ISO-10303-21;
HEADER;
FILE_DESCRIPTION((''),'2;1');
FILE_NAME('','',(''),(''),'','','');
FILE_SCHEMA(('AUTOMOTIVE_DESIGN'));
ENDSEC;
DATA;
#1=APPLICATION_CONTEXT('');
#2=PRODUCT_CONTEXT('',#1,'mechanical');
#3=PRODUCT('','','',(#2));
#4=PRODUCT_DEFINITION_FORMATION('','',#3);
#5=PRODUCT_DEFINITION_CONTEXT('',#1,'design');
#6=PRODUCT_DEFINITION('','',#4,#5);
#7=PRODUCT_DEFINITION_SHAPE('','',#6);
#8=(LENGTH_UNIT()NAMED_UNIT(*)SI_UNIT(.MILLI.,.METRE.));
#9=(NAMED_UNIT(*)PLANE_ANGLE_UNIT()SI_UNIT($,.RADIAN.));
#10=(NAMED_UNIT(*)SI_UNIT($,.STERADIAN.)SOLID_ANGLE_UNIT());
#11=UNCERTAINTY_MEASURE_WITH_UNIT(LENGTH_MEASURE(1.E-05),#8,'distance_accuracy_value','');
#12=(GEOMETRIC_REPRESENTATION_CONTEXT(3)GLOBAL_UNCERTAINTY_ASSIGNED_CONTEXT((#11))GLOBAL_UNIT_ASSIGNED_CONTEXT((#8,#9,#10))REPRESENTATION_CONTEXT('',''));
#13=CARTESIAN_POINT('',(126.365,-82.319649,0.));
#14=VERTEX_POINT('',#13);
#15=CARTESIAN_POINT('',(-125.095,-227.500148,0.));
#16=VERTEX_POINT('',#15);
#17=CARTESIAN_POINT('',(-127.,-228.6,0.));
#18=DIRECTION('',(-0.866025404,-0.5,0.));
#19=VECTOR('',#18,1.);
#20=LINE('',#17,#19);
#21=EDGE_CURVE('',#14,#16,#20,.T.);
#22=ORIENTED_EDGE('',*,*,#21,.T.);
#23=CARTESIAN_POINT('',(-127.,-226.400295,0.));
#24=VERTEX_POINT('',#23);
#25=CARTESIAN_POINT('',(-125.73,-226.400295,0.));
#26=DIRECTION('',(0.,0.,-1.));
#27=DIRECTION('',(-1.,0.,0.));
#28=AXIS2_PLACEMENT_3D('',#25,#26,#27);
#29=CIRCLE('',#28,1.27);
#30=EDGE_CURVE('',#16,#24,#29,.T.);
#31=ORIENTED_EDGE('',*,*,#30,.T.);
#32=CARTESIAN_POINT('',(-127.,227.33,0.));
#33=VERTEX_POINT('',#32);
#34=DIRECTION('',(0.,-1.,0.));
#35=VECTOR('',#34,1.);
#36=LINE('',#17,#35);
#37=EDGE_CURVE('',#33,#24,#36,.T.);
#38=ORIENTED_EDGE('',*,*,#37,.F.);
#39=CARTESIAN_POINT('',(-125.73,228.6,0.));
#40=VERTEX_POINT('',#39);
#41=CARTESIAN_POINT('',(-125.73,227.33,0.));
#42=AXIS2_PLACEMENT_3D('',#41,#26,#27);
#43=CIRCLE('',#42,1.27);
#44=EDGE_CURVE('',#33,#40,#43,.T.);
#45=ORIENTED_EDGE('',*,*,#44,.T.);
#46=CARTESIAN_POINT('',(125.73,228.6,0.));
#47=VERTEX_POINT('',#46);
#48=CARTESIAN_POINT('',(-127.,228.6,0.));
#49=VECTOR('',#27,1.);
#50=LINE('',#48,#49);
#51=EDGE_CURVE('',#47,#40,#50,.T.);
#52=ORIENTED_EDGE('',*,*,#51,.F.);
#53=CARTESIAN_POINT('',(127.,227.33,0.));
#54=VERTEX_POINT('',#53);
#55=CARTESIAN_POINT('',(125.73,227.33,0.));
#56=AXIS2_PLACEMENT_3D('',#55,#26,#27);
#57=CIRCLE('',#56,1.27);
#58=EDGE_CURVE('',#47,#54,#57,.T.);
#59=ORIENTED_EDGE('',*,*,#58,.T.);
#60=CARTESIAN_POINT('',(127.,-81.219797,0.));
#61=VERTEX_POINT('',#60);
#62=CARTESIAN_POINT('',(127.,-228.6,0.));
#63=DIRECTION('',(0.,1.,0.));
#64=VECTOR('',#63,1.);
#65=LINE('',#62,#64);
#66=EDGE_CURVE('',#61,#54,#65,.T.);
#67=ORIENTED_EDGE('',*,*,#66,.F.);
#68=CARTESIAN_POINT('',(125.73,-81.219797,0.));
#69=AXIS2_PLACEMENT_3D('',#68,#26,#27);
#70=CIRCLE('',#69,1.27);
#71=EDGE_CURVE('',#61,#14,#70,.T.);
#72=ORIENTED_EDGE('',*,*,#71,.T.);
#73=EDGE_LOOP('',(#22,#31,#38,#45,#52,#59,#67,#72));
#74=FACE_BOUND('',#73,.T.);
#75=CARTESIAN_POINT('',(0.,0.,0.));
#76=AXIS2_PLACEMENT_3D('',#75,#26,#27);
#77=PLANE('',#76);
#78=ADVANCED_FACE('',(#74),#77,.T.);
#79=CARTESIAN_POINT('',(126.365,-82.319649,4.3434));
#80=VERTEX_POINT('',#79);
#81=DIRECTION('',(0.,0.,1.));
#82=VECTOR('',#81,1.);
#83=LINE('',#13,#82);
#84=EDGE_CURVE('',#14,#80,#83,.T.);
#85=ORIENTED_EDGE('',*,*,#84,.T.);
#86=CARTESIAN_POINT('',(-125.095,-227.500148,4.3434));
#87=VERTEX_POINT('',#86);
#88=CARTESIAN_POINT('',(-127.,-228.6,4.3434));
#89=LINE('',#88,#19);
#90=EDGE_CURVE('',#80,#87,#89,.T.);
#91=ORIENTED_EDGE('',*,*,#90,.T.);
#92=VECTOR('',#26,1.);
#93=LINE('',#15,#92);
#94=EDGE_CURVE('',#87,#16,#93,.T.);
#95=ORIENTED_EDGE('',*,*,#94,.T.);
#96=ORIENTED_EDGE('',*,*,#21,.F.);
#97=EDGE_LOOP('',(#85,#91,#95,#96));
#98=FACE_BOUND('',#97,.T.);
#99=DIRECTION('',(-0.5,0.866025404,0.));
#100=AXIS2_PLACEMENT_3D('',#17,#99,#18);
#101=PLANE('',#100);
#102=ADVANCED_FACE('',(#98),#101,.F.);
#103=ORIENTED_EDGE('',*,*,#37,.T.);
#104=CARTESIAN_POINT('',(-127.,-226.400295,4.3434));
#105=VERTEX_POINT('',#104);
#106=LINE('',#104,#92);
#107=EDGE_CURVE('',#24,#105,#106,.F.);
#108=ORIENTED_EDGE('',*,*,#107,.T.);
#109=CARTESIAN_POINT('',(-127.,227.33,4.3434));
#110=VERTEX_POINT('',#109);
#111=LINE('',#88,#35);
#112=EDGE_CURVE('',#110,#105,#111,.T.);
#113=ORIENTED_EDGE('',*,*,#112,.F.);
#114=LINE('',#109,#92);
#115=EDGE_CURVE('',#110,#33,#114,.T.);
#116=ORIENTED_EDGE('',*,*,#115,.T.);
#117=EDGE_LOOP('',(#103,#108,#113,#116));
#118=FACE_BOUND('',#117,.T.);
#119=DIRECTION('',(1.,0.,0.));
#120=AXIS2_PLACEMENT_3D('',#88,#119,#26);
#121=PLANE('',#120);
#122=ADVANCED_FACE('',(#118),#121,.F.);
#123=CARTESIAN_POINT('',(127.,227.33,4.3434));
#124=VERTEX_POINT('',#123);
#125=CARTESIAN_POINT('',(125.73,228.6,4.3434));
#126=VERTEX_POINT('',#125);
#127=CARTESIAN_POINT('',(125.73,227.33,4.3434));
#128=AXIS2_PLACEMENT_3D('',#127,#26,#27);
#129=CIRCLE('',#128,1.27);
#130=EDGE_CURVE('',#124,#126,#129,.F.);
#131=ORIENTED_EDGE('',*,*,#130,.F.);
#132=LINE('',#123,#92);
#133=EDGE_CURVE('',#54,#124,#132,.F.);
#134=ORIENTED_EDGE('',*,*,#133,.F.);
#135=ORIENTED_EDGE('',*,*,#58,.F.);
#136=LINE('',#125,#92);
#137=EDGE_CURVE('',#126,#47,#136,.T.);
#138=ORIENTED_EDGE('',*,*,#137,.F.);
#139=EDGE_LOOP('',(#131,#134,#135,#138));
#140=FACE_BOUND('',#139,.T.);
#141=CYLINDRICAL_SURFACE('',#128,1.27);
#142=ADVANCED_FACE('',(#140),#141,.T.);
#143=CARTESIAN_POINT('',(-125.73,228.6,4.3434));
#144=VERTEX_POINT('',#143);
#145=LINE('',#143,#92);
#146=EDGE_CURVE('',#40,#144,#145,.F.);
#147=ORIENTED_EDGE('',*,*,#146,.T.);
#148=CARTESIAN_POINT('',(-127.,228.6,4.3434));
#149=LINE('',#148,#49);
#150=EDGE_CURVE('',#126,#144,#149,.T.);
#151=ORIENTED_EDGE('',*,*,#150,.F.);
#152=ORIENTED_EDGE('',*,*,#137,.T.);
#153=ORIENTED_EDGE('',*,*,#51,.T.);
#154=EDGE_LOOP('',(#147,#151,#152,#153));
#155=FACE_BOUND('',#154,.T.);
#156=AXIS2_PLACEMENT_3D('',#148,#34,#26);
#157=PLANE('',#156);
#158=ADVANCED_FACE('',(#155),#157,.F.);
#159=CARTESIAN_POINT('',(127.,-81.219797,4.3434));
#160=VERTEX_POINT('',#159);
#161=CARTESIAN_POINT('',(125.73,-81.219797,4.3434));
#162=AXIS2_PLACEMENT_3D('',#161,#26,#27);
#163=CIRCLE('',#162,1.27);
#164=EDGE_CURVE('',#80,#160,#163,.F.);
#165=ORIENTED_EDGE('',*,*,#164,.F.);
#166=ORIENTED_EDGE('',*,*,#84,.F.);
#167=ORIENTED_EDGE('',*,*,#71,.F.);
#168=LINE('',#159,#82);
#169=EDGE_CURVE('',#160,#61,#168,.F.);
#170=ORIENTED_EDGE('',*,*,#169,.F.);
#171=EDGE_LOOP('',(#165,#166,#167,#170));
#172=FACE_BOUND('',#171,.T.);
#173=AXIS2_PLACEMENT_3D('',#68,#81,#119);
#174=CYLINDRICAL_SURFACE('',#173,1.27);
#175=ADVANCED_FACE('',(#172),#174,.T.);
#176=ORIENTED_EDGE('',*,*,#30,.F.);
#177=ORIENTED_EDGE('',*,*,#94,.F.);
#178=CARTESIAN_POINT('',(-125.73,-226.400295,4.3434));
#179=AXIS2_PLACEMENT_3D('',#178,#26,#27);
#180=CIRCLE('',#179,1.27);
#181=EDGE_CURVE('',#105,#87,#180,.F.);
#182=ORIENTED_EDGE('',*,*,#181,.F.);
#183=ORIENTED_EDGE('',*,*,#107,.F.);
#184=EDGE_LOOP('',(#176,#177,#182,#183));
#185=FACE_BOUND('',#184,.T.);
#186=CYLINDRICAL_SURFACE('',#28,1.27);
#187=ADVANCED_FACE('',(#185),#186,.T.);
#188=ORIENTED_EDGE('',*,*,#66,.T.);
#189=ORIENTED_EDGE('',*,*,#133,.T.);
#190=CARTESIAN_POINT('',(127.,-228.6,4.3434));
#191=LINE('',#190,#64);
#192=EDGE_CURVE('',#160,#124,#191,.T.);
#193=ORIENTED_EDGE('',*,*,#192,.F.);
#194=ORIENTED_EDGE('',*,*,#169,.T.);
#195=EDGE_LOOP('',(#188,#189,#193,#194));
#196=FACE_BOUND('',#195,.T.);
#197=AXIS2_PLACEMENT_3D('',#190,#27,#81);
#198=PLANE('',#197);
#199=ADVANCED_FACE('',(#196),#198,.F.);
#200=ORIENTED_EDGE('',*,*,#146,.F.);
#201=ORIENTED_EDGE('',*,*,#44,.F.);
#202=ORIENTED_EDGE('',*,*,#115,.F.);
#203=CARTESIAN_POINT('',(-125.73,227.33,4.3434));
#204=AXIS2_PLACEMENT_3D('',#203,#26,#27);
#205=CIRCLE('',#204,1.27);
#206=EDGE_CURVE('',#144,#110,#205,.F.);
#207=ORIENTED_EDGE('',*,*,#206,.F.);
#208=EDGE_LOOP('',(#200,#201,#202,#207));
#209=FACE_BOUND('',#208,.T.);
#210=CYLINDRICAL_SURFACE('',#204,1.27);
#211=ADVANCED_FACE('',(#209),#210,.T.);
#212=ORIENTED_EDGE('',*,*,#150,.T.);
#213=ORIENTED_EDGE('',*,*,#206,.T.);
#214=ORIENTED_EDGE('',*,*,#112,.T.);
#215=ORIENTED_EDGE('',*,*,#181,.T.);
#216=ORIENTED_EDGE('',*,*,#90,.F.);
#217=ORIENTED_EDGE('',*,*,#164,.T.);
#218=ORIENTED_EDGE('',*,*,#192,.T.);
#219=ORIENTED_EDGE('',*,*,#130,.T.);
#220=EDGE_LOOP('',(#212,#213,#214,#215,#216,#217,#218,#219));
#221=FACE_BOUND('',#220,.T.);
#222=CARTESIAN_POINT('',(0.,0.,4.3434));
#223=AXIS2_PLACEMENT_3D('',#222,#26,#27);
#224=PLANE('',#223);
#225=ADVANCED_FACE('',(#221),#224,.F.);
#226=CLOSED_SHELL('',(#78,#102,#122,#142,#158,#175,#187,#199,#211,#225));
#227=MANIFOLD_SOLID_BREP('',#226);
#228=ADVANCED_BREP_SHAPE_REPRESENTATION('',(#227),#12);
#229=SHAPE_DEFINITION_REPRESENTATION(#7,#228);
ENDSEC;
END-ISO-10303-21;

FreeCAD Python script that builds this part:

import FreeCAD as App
import Part
import Sketcher
Q = App.Units.Quantity


def edges_at(feature, points):
    """Names of the edges that pass closest to the given points."""
    edges = feature.Shape.Edges
    near = lambda p: min(range(len(edges)), key=lambda i: edges[i].distToShape(Part.Vertex(*p))[0])
    return sorted({f"Edge{near(p) + 1}" for p in points})

doc = App.newDocument("Part")
params = doc.addObject("Spreadsheet::Sheet", "Params")
for row, (alias, value) in enumerate([
    ("sketch1_width", "10 in"),
    ("sketch1_height", "18 in"),
    ("pad1_length", "0.171 in"),
    ("sketch2_width", "10 in"),
    ("fillet_radius", "0.05 in"),
], start=1):
    params.set(f"A{row}", alias)
    params.set(f"B{row}", "=" + value)
    params.setAlias(f"B{row}", alias)

body = doc.addObject("PartDesign::Body", "Body")

sketch1 = body.newObject("Sketcher::SketchObject", "Sketch")
sketch1.AttachmentSupport = (doc.getObject("XY_Plane"), [""])
sketch1.MapMode = "FlatFace"
sketch1.addGeometry([
    Part.LineSegment(App.Vector(-127, 229, 0), App.Vector(-127, -229, 0)),
    Part.LineSegment(App.Vector(-127, -229, 0), App.Vector(127, -229, 0)),
    Part.LineSegment(App.Vector(127, -229, 0), App.Vector(127, 229, 0)),
    Part.LineSegment(App.Vector(127, 229, 0), App.Vector(-127, 229, 0)),
], False)
sketch1.addConstraint([
    Sketcher.Constraint("Coincident", 0, 2, 1, 1),
    Sketcher.Constraint("Coincident", 1, 2, 2, 1),
    Sketcher.Constraint("Coincident", 2, 2, 3, 1),
    Sketcher.Constraint("Coincident", 3, 2, 0, 1),
    Sketcher.Constraint("Vertical", 0),
    Sketcher.Constraint("Horizontal", 1),
    Sketcher.Constraint("Vertical", 2),
    Sketcher.Constraint("Horizontal", 3),
    Sketcher.Constraint("Symmetric", 0, 2, 2, 2, -1, 1),
    Sketcher.Constraint("DistanceX", 1, 1, 1, 2, Q("10 in")),
    Sketcher.Constraint("DistanceY", 0, 2, 0, 1, Q("18 in")),
])
sketch1.setExpression("Constraints[9]", "Params.sketch1_width")
sketch1.setExpression("Constraints[10]", "Params.sketch1_height")
pad1 = body.newObject("PartDesign::Pad", "Pad")
pad1.Profile = sketch1
pad1.setExpression("Length", "Params.pad1_length")

sketch2 = body.newObject("Sketcher::SketchObject", "Sketch001")
sketch2.AttachmentSupport = (doc.getObject("XY_Plane"), [""])
sketch2.MapMode = "FlatFace"
sketch2.AttachmentOffset = App.Placement(App.Vector(0, 0, 0.171 * 25.4), App.Rotation())
sketch2.addGeometry([
    Part.LineSegment(App.Vector(127, -82, 0), App.Vector(-127, -229, 0)),
    Part.LineSegment(App.Vector(-127, -229, 0), App.Vector(127, -229, 0)),
    Part.LineSegment(App.Vector(127, -229, 0), App.Vector(127, -82, 0)),
], False)
sketch2.addConstraint([
    Sketcher.Constraint("Coincident", 0, 2, 1, 1),
    Sketcher.Constraint("Coincident", 1, 2, 2, 1),
    Sketcher.Constraint("Coincident", 2, 2, 0, 1),
    Sketcher.Constraint("Horizontal", 1),
    Sketcher.Constraint("Vertical", 2),
    Sketcher.Constraint("DistanceX", 1, 1, 1, 2, Q("10 in")),
    Sketcher.Constraint("DistanceX", 0, 2, -1, 1, Q("5 in")),
    Sketcher.Constraint("DistanceY", 0, 2, -1, 1, Q("9 in")),
    Sketcher.Constraint("Angle", 0, Q("-150 deg")),
])
sketch2.setExpression("Constraints[5]", "Params.sketch2_width")
pocket1 = body.newObject("PartDesign::Pocket", "Pocket")
pocket1.Profile = sketch2
pocket1.Type = "ThroughAll"
doc.recompute()

fillet = body.newObject("PartDesign::Fillet", "Fillet")
fillet.Base = (pocket1, edges_at(pocket1, [
    (127, -81.953, 2.172),
    (-127, -228.6, 2.172),
    (-127, 228.6, 2.172),
    (127, 228.6, 2.172),
]))
fillet.setExpression("Radius", "Params.fillet_radius")

doc.recompute()
